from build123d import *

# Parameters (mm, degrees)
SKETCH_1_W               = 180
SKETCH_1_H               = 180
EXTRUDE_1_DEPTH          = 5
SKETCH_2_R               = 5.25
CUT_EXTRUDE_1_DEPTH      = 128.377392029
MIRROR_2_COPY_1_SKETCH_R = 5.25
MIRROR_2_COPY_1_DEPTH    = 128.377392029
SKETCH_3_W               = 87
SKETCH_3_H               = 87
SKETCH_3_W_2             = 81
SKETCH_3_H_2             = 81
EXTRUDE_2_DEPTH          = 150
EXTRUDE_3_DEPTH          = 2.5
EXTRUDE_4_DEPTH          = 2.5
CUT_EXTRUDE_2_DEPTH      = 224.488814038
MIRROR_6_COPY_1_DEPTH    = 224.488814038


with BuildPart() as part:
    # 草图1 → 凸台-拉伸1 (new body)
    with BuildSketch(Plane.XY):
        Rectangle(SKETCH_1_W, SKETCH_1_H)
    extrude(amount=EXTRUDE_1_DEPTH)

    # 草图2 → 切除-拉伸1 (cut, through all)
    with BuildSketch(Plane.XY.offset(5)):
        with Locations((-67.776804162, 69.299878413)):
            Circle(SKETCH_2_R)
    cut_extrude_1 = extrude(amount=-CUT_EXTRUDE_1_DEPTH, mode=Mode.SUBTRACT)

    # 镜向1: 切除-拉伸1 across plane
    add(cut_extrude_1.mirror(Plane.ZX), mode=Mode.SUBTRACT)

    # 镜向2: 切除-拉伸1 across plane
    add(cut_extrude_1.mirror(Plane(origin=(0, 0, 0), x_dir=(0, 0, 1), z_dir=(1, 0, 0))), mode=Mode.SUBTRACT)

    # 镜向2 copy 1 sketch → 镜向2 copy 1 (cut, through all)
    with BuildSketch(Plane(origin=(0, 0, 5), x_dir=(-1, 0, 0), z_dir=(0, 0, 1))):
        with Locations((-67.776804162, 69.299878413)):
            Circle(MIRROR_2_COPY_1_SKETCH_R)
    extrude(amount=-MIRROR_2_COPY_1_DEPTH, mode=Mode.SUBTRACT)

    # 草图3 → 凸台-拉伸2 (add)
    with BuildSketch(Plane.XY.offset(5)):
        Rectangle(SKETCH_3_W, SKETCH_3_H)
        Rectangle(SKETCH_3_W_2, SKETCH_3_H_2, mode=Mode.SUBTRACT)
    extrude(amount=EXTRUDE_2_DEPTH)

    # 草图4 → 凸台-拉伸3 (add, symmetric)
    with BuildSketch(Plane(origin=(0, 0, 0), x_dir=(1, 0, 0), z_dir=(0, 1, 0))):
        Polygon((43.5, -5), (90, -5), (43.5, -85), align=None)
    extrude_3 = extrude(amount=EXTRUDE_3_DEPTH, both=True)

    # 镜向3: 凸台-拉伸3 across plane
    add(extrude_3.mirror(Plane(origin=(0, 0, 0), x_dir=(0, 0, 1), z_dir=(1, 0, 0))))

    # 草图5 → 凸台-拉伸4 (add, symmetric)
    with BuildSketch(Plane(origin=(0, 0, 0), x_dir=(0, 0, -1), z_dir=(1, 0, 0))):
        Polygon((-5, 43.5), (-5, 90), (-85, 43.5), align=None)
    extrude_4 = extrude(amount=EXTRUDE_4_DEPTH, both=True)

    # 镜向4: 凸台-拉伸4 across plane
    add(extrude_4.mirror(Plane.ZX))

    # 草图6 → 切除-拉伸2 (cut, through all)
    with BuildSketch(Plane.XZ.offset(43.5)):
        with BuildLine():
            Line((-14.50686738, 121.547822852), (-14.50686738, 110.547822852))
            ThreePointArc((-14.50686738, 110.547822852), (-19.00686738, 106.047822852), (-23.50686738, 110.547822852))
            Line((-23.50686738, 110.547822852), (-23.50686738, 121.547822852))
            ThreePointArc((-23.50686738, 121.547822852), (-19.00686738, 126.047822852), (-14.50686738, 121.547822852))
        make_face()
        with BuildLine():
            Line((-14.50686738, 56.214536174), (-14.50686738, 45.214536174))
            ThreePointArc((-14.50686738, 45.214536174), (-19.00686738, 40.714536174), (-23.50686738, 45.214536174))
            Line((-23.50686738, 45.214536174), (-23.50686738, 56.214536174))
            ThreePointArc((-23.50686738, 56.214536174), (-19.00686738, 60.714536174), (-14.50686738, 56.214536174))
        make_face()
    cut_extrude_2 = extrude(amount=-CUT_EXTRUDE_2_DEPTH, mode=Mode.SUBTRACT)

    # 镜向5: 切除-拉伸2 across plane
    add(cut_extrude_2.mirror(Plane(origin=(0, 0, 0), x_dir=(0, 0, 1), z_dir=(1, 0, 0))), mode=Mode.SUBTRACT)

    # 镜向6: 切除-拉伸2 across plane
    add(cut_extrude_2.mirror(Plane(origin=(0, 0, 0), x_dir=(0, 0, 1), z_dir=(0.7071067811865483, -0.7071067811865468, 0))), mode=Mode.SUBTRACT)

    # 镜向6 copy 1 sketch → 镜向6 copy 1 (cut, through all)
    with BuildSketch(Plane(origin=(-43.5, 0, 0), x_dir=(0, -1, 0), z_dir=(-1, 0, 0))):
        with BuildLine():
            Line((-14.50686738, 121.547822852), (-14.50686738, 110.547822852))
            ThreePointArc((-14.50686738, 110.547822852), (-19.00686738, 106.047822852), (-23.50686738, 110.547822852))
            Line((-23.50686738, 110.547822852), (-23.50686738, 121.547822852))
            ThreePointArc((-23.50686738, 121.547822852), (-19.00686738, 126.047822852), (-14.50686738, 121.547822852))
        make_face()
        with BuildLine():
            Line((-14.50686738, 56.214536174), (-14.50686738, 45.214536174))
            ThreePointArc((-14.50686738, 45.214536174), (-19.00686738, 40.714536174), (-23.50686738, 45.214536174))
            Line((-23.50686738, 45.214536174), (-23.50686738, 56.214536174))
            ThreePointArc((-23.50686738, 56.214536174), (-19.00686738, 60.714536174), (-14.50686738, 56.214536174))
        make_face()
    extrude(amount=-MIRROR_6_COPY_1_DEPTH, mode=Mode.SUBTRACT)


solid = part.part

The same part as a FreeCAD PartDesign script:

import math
import FreeCAD as App
import Part
import Sketcher

V = App.Vector
Q = App.Units.Quantity


def add_polygon(sketch, points):
    """Adds a closed chain of lines whose ends are joined by coincident constraints."""
    first, n = sketch.GeometryCount, len(points)
    for a, b in zip(points, points[1:] + points[:1]):
        sketch.addGeometry(Part.LineSegment(App.Vector(*a, 0), App.Vector(*b, 0)), False)
    for i in range(n):
        sketch.addConstraint(Sketcher.Constraint("Coincident", first + i, 2, first + (i + 1) % n, 1))

doc = App.newDocument("Part")
body = doc.addObject("PartDesign::Body", "Body")

# Sketch on XY plane
sketch1 = body.newObject("Sketcher::SketchObject", "Sketch")
sketch1.AttachmentSupport = (doc.getObject("XY_Plane"), [""])
sketch1.MapMode = "FlatFace"
add_polygon(sketch1, [(-90, 90), (-90, -90), (90, -90), (90, 90)])  # lines 0-3
sketch1.addConstraint(Sketcher.Constraint("Vertical", 0))
sketch1.addConstraint(Sketcher.Constraint("Horizontal", 1))
sketch1.addConstraint(Sketcher.Constraint("Vertical", 2))
sketch1.addConstraint(Sketcher.Constraint("Horizontal", 3))
sketch1.addConstraint(Sketcher.Constraint("Symmetric", 0, 2, 2, 2, -1, 1))
sketch1.addConstraint(Sketcher.Constraint("Equal", 3, 0))
sketch1.addConstraint(Sketcher.Constraint("DistanceX", 1, 1, 1, 2, Q("180 mm")))
pad1 = body.newObject("PartDesign::Pad", "Pad")
pad1.Profile = sketch1
pad1.Length = 5

# Sketch on XY plane
sketch2 = body.newObject("Sketcher::SketchObject", "Sketch001")
sketch2.AttachmentSupport = (doc.getObject("XY_Plane"), [""])
sketch2.MapMode = "FlatFace"
sketch2.AttachmentOffset = App.Placement(V(0, 0, 5), App.Rotation())
sketch2.addGeometry(Part.Circle(V(-68, 69, 0), V(0, 0, 1), 5), False)
sketch2.addConstraint(Sketcher.Constraint("Diameter", 0, Q("10.5 mm")))
sketch2.addConstraint(Sketcher.Constraint("DistanceY", -1, 1, 0, 3, Q("69.299878 mm")))
sketch2.addConstraint(Sketcher.Constraint("DistanceX", 0, 3, -1, 1, Q("67.776804 mm")))
pocket1 = body.newObject("PartDesign::Pocket", "Pocket")
pocket1.Profile = sketch2
pocket1.Type = "ThroughAll"
doc.recompute()

mirrored = body.newObject("PartDesign::Mirrored", "Mirrored")
mirrored.Originals = [pocket1]
mirrored.MirrorPlane = (doc.getObject("XZ_Plane"), [""])
body.Tip = mirrored
doc.recompute()

mirrored2 = body.newObject("PartDesign::Mirrored", "Mirrored001")
mirrored2.Originals = [pocket1]
mirrored2.MirrorPlane = (doc.getObject("YZ_Plane"), [""])
body.Tip = mirrored2

# Sketch on XY plane
sketch3 = body.newObject("Sketcher::SketchObject", "Sketch002")
sketch3.AttachmentSupport = (doc.getObject("XY_Plane"), [""])
sketch3.MapMode = "FlatFace"
sketch3.AttachmentOffset = App.Placement(V(0, 0, 5), App.Rotation())
sketch3.addGeometry(Part.Circle(V(68, -69, 0), V(0, 0, 1), 5), False)
sketch3.addConstraint(Sketcher.Constraint("Diameter", 0, Q("10.5 mm")))
sketch3.addConstraint(Sketcher.Constraint("DistanceY", 0, 3, -1, 1, Q("69.299878 mm")))
sketch3.addConstraint(Sketcher.Constraint("DistanceX", -1, 1, 0, 3, Q("67.776804 mm")))
pocket2 = body.newObject("PartDesign::Pocket", "Pocket001")
pocket2.Profile = sketch3
pocket2.Type = "ThroughAll"

# Sketch on XY plane
sketch4 = body.newObject("Sketcher::SketchObject", "Sketch003")
sketch4.AttachmentSupport = (doc.getObject("XY_Plane"), [""])
sketch4.MapMode = "FlatFace"
sketch4.AttachmentOffset = App.Placement(V(0, 0, 5), App.Rotation())
add_polygon(sketch4, [(-44, 44), (-44, -44), (44, -44), (44, 44)])  # lines 0-3
add_polygon(sketch4, [(40, -40), (-40, -40), (-40, 40), (40, 40)])  # lines 4-7
sketch4.addConstraint(Sketcher.Constraint("Vertical", 0))
sketch4.addConstraint(Sketcher.Constraint("Horizontal", 1))
sketch4.addConstraint(Sketcher.Constraint("Vertical", 2))
sketch4.addConstraint(Sketcher.Constraint("Horizontal", 3))
sketch4.addConstraint(Sketcher.Constraint("Horizontal", 4))
sketch4.addConstraint(Sketcher.Constraint("Vertical", 5))
sketch4.addConstraint(Sketcher.Constraint("Horizontal", 6))
sketch4.addConstraint(Sketcher.Constraint("Vertical", 7))
sketch4.addConstraint(Sketcher.Constraint("Symmetric", 0, 2, 2, 2, -1, 1))
sketch4.addConstraint(Sketcher.Constraint("Symmetric", 4, 2, 6, 2, -1, 1))
sketch4.addConstraint(Sketcher.Constraint("Equal", 3, 0))
sketch4.addConstraint(Sketcher.Constraint("Equal", 6, 5))
sketch4.addConstraint(Sketcher.Constraint("DistanceX", 1, 1, 1, 2, Q("87 mm")))
sketch4.addConstraint(Sketcher.Constraint("DistanceX", 4, 2, 4, 1, Q("81 mm")))
pad2 = body.newObject("PartDesign::Pad", "Pad001")
pad2.Profile = sketch4
pad2.Length = 150

# Sketch on XZ plane
sketch5 = body.newObject("Sketcher::SketchObject", "Sketch004")
sketch5.AttachmentSupport = (doc.getObject("XZ_Plane"), [""])
sketch5.MapMode = "FlatFace"
add_polygon(sketch5, [(90, 5), (44, 5), (44, 85)])  # lines 0-2
sketch5.addConstraint(Sketcher.Constraint("Horizontal", 0))
sketch5.addConstraint(Sketcher.Constraint("Vertical", 1))
sketch5.addConstraint(Sketcher.Constraint("DistanceY", 1, 1, 1, 2, Q("80 mm")))
sketch5.addConstraint(Sketcher.Constraint("DistanceX", 0, 2, 0, 1, Q("46.5 mm")))
sketch5.addConstraint(Sketcher.Constraint("DistanceY", -1, 1, 0, 2, Q("5 mm")))
sketch5.addConstraint(Sketcher.Constraint("DistanceX", -1, 1, 2, 2, Q("90 mm")))
pad3 = body.newObject("PartDesign::Pad", "Pad002")
pad3.Profile = sketch5
pad3.Length = 5
pad3.Midplane = True
doc.recompute()

mirrored3 = body.newObject("PartDesign::Mirrored", "Mirrored002")
mirrored3.Originals = [pad3]
mirrored3.MirrorPlane = (doc.getObject("YZ_Plane"), [""])
body.Tip = mirrored3

# Sketch on YZ plane
sketch6 = body.newObject("Sketcher::SketchObject", "Sketch005")
sketch6.AttachmentSupport = (doc.getObject("YZ_Plane"), [""])
sketch6.MapMode = "FlatFace"
add_polygon(sketch6, [(44, 5), (90, 5), (44, 85)])  # lines 0-2
sketch6.addConstraint(Sketcher.Constraint("Horizontal", 0))
sketch6.addConstraint(Sketcher.Constraint("Vertical", 2))
sketch6.addConstraint(Sketcher.Constraint("DistanceY", 2, 2, 2, 1, Q("80 mm")))
sketch6.addConstraint(Sketcher.Constraint("DistanceX", 0, 1, 0, 2, Q("46.5 mm")))
sketch6.addConstraint(Sketcher.Constraint("DistanceX", -1, 1, 0, 2, Q("90 mm")))
sketch6.addConstraint(Sketcher.Constraint("DistanceY", -1, 1, 0, 2, Q("5 mm")))
pad4 = body.newObject("PartDesign::Pad", "Pad003")
pad4.Profile = sketch6
pad4.Length = 5
pad4.Midplane = True
doc.recompute()

mirrored4 = body.newObject("PartDesign::Mirrored", "Mirrored003")
mirrored4.Originals = [pad4]
mirrored4.MirrorPlane = (doc.getObject("XZ_Plane"), [""])
body.Tip = mirrored4

# Sketch on XZ plane
sketch7 = body.newObject("Sketcher::SketchObject", "Sketch006")
sketch7.AttachmentSupport = (doc.getObject("XZ_Plane"), [""])
sketch7.MapMode = "FlatFace"
sketch7.AttachmentOffset = App.Placement(V(0, 0, 43.5), App.Rotation())
sketch7.addGeometry(Part.LineSegment(V(-14.5, 110.5, 0), V(-14.5, 121.5, 0)), False)
sketch7.addGeometry(Part.ArcOfCircle(Part.Circle(V(-19, 121.5, 0), V(0, 0, 1), 4.5), math.radians(0), math.radians(180)), False)
sketch7.addGeometry(Part.LineSegment(V(-23.5, 121.5, 0), V(-23.5, 110.5, 0)), False)
sketch7.addGeometry(Part.ArcOfCircle(Part.Circle(V(-19, 110.5, 0), V(0, 0, 1), 4.5), math.radians(180), math.radians(360)), False)
sketch7.addGeometry(Part.LineSegment(V(-14.5, 45.2, 0), V(-14.5, 56.2, 0)), False)
sketch7.addGeometry(Part.ArcOfCircle(Part.Circle(V(-19, 56.2, 0), V(0, 0, 1), 4.5), math.radians(0), math.radians(180)), False)
sketch7.addGeometry(Part.LineSegment(V(-23.5, 56.2, 0), V(-23.5, 45.2, 0)), False)
sketch7.addGeometry(Part.ArcOfCircle(Part.Circle(V(-19, 45.2, 0), V(0, 0, 1), 4.5), math.radians(180), math.radians(360)), False)
sketch7.addConstraint(Sketcher.Constraint("Tangent", 0, 2, 1, 1))
sketch7.addConstraint(Sketcher.Constraint("Tangent", 1, 2, 2, 1))
sketch7.addConstraint(Sketcher.Constraint("Tangent", 2, 2, 3, 1))
sketch7.addConstraint(Sketcher.Constraint("Tangent", 3, 2, 0, 1))
sketch7.addConstraint(Sketcher.Constraint("Tangent", 4, 2, 5, 1))
sketch7.addConstraint(Sketcher.Constraint("Tangent", 5, 2, 6, 1))
sketch7.addConstraint(Sketcher.Constraint("Tangent", 6, 2, 7, 1))
sketch7.addConstraint(Sketcher.Constraint("Tangent", 7, 2, 4, 1))
sketch7.addConstraint(Sketcher.Constraint("Vertical", 0))
sketch7.addConstraint(Sketcher.Constraint("Vertical", 2))
sketch7.addConstraint(Sketcher.Constraint("Vertical", 4))
sketch7.addConstraint(Sketcher.Constraint("Vertical", 6))
sketch7.addConstraint(Sketcher.Constraint("Equal", 3, 5))
sketch7.addConstraint(Sketcher.Constraint("Vertical", 3, 3, 5, 3))
sketch7.addConstraint(Sketcher.Constraint("Equal", 2, 4))
sketch7.addConstraint(Sketcher.Constraint("Radius", 1, Q("4.5 mm")))
sketch7.addConstraint(Sketcher.Constraint("DistanceY", 0, 1, 0, 2, Q("11 mm")))
sketch7.addConstraint(Sketcher.Constraint("DistanceX", 1, 3, -1, 1, Q("19.006867 mm")))
sketch7.addConstraint(Sketcher.Constraint("DistanceY", -1, 1, 1, 3, Q("121.547823 mm")))
sketch7.addConstraint(Sketcher.Constraint("DistanceY", -1, 1, 5, 3, Q("56.214536 mm")))
pocket3 = body.newObject("PartDesign::Pocket", "Pocket002")
pocket3.Profile = sketch7
pocket3.Type = "ThroughAll"
doc.recompute()

mirrored5 = body.newObject("PartDesign::Mirrored", "Mirrored004")
mirrored5.Originals = [pocket3]
mirrored5.MirrorPlane = (doc.getObject("YZ_Plane"), [""])
body.Tip = mirrored5
doc.recompute()

datumplane = body.newObject("PartDesign::Plane", "DatumPlane")
datumplane.Placement = App.Placement(V(0, 0, 0), App.Rotation(V(-0.707106781, -0.707106781, 0), V(0, 0, -1), V(0.707106781, -0.707106781, 0), "ZXY"))
mirrored6 = body.newObject("PartDesign::Mirrored", "Mirrored005")
mirrored6.Originals = [pocket3]
mirrored6.MirrorPlane = (datumplane, [""])
body.Tip = mirrored6

# Sketch on YZ plane
sketch8 = body.newObject("Sketcher::SketchObject", "Sketch007")
sketch8.AttachmentSupport = (doc.getObject("YZ_Plane"), [""])
sketch8.MapMode = "FlatFace"
sketch8.AttachmentOffset = App.Placement(V(0, 0, -43.5), App.Rotation())
sketch8.addGeometry(Part.LineSegment(V(14.5, 110.5, 0), V(14.5, 121.5, 0)), False)
sketch8.addGeometry(Part.ArcOfCircle(Part.Circle(V(19, 121.5, 0), V(0, 0, 1), 4.5), math.radians(0), math.radians(180)), False)
sketch8.addGeometry(Part.LineSegment(V(23.5, 121.5, 0), V(23.5, 110.5, 0)), False)
sketch8.addGeometry(Part.ArcOfCircle(Part.Circle(V(19, 110.5, 0), V(0, 0, 1), 4.5), math.radians(180), math.radians(360)), False)
sketch8.addGeometry(Part.LineSegment(V(14.5, 45.2, 0), V(14.5, 56.2, 0)), False)
sketch8.addGeometry(Part.ArcOfCircle(Part.Circle(V(19, 56.2, 0), V(0, 0, 1), 4.5), math.radians(0), math.radians(180)), False)
sketch8.addGeometry(Part.LineSegment(V(23.5, 56.2, 0), V(23.5, 45.2, 0)), False)
sketch8.addGeometry(Part.ArcOfCircle(Part.Circle(V(19, 45.2, 0), V(0, 0, 1), 4.5), math.radians(180), math.radians(360)), False)
sketch8.addConstraint(Sketcher.Constraint("Tangent", 0, 2, 1, 2))
sketch8.addConstraint(Sketcher.Constraint("Tangent", 1, 1, 2, 1))
sketch8.addConstraint(Sketcher.Constraint("Tangent", 2, 2, 3, 2))
sketch8.addConstraint(Sketcher.Constraint("Tangent", 3, 1, 0, 1))
sketch8.addConstraint(Sketcher.Constraint("Tangent", 4, 2, 5, 2))
sketch8.addConstraint(Sketcher.Constraint("Tangent", 5, 1, 6, 1))
sketch8.addConstraint(Sketcher.Constraint("Tangent", 6, 2, 7, 2))
sketch8.addConstraint(Sketcher.Constraint("Tangent", 7, 1, 4, 1))
sketch8.addConstraint(Sketcher.Constraint("Vertical", 0))
sketch8.addConstraint(Sketcher.Constraint("Vertical", 2))
sketch8.addConstraint(Sketcher.Constraint("Vertical", 4))
sketch8.addConstraint(Sketcher.Constraint("Vertical", 6))
sketch8.addConstraint(Sketcher.Constraint("Equal", 3, 5))
sketch8.addConstraint(Sketcher.Constraint("Vertical", 3, 3, 5, 3))
sketch8.addConstraint(Sketcher.Constraint("Equal", 2, 4))
sketch8.addConstraint(Sketcher.Constraint("Radius", 1, Q("4.5 mm")))
sketch8.addConstraint(Sketcher.Constraint("DistanceY", 0, 1, 0, 2, Q("11 mm")))
sketch8.addConstraint(Sketcher.Constraint("DistanceX", -1, 1, 1, 3, Q("19.006867 mm")))
sketch8.addConstraint(Sketcher.Constraint("DistanceY", -1, 1, 1, 3, Q("121.547823 mm")))
sketch8.addConstraint(Sketcher.Constraint("DistanceY", -1, 1, 5, 3, Q("56.214536 mm")))
pocket4 = body.newObject("PartDesign::Pocket", "Pocket003")
pocket4.Profile = sketch8
pocket4.Type = "ThroughAll"
pocket4.Reversed = True

doc.recompute()
